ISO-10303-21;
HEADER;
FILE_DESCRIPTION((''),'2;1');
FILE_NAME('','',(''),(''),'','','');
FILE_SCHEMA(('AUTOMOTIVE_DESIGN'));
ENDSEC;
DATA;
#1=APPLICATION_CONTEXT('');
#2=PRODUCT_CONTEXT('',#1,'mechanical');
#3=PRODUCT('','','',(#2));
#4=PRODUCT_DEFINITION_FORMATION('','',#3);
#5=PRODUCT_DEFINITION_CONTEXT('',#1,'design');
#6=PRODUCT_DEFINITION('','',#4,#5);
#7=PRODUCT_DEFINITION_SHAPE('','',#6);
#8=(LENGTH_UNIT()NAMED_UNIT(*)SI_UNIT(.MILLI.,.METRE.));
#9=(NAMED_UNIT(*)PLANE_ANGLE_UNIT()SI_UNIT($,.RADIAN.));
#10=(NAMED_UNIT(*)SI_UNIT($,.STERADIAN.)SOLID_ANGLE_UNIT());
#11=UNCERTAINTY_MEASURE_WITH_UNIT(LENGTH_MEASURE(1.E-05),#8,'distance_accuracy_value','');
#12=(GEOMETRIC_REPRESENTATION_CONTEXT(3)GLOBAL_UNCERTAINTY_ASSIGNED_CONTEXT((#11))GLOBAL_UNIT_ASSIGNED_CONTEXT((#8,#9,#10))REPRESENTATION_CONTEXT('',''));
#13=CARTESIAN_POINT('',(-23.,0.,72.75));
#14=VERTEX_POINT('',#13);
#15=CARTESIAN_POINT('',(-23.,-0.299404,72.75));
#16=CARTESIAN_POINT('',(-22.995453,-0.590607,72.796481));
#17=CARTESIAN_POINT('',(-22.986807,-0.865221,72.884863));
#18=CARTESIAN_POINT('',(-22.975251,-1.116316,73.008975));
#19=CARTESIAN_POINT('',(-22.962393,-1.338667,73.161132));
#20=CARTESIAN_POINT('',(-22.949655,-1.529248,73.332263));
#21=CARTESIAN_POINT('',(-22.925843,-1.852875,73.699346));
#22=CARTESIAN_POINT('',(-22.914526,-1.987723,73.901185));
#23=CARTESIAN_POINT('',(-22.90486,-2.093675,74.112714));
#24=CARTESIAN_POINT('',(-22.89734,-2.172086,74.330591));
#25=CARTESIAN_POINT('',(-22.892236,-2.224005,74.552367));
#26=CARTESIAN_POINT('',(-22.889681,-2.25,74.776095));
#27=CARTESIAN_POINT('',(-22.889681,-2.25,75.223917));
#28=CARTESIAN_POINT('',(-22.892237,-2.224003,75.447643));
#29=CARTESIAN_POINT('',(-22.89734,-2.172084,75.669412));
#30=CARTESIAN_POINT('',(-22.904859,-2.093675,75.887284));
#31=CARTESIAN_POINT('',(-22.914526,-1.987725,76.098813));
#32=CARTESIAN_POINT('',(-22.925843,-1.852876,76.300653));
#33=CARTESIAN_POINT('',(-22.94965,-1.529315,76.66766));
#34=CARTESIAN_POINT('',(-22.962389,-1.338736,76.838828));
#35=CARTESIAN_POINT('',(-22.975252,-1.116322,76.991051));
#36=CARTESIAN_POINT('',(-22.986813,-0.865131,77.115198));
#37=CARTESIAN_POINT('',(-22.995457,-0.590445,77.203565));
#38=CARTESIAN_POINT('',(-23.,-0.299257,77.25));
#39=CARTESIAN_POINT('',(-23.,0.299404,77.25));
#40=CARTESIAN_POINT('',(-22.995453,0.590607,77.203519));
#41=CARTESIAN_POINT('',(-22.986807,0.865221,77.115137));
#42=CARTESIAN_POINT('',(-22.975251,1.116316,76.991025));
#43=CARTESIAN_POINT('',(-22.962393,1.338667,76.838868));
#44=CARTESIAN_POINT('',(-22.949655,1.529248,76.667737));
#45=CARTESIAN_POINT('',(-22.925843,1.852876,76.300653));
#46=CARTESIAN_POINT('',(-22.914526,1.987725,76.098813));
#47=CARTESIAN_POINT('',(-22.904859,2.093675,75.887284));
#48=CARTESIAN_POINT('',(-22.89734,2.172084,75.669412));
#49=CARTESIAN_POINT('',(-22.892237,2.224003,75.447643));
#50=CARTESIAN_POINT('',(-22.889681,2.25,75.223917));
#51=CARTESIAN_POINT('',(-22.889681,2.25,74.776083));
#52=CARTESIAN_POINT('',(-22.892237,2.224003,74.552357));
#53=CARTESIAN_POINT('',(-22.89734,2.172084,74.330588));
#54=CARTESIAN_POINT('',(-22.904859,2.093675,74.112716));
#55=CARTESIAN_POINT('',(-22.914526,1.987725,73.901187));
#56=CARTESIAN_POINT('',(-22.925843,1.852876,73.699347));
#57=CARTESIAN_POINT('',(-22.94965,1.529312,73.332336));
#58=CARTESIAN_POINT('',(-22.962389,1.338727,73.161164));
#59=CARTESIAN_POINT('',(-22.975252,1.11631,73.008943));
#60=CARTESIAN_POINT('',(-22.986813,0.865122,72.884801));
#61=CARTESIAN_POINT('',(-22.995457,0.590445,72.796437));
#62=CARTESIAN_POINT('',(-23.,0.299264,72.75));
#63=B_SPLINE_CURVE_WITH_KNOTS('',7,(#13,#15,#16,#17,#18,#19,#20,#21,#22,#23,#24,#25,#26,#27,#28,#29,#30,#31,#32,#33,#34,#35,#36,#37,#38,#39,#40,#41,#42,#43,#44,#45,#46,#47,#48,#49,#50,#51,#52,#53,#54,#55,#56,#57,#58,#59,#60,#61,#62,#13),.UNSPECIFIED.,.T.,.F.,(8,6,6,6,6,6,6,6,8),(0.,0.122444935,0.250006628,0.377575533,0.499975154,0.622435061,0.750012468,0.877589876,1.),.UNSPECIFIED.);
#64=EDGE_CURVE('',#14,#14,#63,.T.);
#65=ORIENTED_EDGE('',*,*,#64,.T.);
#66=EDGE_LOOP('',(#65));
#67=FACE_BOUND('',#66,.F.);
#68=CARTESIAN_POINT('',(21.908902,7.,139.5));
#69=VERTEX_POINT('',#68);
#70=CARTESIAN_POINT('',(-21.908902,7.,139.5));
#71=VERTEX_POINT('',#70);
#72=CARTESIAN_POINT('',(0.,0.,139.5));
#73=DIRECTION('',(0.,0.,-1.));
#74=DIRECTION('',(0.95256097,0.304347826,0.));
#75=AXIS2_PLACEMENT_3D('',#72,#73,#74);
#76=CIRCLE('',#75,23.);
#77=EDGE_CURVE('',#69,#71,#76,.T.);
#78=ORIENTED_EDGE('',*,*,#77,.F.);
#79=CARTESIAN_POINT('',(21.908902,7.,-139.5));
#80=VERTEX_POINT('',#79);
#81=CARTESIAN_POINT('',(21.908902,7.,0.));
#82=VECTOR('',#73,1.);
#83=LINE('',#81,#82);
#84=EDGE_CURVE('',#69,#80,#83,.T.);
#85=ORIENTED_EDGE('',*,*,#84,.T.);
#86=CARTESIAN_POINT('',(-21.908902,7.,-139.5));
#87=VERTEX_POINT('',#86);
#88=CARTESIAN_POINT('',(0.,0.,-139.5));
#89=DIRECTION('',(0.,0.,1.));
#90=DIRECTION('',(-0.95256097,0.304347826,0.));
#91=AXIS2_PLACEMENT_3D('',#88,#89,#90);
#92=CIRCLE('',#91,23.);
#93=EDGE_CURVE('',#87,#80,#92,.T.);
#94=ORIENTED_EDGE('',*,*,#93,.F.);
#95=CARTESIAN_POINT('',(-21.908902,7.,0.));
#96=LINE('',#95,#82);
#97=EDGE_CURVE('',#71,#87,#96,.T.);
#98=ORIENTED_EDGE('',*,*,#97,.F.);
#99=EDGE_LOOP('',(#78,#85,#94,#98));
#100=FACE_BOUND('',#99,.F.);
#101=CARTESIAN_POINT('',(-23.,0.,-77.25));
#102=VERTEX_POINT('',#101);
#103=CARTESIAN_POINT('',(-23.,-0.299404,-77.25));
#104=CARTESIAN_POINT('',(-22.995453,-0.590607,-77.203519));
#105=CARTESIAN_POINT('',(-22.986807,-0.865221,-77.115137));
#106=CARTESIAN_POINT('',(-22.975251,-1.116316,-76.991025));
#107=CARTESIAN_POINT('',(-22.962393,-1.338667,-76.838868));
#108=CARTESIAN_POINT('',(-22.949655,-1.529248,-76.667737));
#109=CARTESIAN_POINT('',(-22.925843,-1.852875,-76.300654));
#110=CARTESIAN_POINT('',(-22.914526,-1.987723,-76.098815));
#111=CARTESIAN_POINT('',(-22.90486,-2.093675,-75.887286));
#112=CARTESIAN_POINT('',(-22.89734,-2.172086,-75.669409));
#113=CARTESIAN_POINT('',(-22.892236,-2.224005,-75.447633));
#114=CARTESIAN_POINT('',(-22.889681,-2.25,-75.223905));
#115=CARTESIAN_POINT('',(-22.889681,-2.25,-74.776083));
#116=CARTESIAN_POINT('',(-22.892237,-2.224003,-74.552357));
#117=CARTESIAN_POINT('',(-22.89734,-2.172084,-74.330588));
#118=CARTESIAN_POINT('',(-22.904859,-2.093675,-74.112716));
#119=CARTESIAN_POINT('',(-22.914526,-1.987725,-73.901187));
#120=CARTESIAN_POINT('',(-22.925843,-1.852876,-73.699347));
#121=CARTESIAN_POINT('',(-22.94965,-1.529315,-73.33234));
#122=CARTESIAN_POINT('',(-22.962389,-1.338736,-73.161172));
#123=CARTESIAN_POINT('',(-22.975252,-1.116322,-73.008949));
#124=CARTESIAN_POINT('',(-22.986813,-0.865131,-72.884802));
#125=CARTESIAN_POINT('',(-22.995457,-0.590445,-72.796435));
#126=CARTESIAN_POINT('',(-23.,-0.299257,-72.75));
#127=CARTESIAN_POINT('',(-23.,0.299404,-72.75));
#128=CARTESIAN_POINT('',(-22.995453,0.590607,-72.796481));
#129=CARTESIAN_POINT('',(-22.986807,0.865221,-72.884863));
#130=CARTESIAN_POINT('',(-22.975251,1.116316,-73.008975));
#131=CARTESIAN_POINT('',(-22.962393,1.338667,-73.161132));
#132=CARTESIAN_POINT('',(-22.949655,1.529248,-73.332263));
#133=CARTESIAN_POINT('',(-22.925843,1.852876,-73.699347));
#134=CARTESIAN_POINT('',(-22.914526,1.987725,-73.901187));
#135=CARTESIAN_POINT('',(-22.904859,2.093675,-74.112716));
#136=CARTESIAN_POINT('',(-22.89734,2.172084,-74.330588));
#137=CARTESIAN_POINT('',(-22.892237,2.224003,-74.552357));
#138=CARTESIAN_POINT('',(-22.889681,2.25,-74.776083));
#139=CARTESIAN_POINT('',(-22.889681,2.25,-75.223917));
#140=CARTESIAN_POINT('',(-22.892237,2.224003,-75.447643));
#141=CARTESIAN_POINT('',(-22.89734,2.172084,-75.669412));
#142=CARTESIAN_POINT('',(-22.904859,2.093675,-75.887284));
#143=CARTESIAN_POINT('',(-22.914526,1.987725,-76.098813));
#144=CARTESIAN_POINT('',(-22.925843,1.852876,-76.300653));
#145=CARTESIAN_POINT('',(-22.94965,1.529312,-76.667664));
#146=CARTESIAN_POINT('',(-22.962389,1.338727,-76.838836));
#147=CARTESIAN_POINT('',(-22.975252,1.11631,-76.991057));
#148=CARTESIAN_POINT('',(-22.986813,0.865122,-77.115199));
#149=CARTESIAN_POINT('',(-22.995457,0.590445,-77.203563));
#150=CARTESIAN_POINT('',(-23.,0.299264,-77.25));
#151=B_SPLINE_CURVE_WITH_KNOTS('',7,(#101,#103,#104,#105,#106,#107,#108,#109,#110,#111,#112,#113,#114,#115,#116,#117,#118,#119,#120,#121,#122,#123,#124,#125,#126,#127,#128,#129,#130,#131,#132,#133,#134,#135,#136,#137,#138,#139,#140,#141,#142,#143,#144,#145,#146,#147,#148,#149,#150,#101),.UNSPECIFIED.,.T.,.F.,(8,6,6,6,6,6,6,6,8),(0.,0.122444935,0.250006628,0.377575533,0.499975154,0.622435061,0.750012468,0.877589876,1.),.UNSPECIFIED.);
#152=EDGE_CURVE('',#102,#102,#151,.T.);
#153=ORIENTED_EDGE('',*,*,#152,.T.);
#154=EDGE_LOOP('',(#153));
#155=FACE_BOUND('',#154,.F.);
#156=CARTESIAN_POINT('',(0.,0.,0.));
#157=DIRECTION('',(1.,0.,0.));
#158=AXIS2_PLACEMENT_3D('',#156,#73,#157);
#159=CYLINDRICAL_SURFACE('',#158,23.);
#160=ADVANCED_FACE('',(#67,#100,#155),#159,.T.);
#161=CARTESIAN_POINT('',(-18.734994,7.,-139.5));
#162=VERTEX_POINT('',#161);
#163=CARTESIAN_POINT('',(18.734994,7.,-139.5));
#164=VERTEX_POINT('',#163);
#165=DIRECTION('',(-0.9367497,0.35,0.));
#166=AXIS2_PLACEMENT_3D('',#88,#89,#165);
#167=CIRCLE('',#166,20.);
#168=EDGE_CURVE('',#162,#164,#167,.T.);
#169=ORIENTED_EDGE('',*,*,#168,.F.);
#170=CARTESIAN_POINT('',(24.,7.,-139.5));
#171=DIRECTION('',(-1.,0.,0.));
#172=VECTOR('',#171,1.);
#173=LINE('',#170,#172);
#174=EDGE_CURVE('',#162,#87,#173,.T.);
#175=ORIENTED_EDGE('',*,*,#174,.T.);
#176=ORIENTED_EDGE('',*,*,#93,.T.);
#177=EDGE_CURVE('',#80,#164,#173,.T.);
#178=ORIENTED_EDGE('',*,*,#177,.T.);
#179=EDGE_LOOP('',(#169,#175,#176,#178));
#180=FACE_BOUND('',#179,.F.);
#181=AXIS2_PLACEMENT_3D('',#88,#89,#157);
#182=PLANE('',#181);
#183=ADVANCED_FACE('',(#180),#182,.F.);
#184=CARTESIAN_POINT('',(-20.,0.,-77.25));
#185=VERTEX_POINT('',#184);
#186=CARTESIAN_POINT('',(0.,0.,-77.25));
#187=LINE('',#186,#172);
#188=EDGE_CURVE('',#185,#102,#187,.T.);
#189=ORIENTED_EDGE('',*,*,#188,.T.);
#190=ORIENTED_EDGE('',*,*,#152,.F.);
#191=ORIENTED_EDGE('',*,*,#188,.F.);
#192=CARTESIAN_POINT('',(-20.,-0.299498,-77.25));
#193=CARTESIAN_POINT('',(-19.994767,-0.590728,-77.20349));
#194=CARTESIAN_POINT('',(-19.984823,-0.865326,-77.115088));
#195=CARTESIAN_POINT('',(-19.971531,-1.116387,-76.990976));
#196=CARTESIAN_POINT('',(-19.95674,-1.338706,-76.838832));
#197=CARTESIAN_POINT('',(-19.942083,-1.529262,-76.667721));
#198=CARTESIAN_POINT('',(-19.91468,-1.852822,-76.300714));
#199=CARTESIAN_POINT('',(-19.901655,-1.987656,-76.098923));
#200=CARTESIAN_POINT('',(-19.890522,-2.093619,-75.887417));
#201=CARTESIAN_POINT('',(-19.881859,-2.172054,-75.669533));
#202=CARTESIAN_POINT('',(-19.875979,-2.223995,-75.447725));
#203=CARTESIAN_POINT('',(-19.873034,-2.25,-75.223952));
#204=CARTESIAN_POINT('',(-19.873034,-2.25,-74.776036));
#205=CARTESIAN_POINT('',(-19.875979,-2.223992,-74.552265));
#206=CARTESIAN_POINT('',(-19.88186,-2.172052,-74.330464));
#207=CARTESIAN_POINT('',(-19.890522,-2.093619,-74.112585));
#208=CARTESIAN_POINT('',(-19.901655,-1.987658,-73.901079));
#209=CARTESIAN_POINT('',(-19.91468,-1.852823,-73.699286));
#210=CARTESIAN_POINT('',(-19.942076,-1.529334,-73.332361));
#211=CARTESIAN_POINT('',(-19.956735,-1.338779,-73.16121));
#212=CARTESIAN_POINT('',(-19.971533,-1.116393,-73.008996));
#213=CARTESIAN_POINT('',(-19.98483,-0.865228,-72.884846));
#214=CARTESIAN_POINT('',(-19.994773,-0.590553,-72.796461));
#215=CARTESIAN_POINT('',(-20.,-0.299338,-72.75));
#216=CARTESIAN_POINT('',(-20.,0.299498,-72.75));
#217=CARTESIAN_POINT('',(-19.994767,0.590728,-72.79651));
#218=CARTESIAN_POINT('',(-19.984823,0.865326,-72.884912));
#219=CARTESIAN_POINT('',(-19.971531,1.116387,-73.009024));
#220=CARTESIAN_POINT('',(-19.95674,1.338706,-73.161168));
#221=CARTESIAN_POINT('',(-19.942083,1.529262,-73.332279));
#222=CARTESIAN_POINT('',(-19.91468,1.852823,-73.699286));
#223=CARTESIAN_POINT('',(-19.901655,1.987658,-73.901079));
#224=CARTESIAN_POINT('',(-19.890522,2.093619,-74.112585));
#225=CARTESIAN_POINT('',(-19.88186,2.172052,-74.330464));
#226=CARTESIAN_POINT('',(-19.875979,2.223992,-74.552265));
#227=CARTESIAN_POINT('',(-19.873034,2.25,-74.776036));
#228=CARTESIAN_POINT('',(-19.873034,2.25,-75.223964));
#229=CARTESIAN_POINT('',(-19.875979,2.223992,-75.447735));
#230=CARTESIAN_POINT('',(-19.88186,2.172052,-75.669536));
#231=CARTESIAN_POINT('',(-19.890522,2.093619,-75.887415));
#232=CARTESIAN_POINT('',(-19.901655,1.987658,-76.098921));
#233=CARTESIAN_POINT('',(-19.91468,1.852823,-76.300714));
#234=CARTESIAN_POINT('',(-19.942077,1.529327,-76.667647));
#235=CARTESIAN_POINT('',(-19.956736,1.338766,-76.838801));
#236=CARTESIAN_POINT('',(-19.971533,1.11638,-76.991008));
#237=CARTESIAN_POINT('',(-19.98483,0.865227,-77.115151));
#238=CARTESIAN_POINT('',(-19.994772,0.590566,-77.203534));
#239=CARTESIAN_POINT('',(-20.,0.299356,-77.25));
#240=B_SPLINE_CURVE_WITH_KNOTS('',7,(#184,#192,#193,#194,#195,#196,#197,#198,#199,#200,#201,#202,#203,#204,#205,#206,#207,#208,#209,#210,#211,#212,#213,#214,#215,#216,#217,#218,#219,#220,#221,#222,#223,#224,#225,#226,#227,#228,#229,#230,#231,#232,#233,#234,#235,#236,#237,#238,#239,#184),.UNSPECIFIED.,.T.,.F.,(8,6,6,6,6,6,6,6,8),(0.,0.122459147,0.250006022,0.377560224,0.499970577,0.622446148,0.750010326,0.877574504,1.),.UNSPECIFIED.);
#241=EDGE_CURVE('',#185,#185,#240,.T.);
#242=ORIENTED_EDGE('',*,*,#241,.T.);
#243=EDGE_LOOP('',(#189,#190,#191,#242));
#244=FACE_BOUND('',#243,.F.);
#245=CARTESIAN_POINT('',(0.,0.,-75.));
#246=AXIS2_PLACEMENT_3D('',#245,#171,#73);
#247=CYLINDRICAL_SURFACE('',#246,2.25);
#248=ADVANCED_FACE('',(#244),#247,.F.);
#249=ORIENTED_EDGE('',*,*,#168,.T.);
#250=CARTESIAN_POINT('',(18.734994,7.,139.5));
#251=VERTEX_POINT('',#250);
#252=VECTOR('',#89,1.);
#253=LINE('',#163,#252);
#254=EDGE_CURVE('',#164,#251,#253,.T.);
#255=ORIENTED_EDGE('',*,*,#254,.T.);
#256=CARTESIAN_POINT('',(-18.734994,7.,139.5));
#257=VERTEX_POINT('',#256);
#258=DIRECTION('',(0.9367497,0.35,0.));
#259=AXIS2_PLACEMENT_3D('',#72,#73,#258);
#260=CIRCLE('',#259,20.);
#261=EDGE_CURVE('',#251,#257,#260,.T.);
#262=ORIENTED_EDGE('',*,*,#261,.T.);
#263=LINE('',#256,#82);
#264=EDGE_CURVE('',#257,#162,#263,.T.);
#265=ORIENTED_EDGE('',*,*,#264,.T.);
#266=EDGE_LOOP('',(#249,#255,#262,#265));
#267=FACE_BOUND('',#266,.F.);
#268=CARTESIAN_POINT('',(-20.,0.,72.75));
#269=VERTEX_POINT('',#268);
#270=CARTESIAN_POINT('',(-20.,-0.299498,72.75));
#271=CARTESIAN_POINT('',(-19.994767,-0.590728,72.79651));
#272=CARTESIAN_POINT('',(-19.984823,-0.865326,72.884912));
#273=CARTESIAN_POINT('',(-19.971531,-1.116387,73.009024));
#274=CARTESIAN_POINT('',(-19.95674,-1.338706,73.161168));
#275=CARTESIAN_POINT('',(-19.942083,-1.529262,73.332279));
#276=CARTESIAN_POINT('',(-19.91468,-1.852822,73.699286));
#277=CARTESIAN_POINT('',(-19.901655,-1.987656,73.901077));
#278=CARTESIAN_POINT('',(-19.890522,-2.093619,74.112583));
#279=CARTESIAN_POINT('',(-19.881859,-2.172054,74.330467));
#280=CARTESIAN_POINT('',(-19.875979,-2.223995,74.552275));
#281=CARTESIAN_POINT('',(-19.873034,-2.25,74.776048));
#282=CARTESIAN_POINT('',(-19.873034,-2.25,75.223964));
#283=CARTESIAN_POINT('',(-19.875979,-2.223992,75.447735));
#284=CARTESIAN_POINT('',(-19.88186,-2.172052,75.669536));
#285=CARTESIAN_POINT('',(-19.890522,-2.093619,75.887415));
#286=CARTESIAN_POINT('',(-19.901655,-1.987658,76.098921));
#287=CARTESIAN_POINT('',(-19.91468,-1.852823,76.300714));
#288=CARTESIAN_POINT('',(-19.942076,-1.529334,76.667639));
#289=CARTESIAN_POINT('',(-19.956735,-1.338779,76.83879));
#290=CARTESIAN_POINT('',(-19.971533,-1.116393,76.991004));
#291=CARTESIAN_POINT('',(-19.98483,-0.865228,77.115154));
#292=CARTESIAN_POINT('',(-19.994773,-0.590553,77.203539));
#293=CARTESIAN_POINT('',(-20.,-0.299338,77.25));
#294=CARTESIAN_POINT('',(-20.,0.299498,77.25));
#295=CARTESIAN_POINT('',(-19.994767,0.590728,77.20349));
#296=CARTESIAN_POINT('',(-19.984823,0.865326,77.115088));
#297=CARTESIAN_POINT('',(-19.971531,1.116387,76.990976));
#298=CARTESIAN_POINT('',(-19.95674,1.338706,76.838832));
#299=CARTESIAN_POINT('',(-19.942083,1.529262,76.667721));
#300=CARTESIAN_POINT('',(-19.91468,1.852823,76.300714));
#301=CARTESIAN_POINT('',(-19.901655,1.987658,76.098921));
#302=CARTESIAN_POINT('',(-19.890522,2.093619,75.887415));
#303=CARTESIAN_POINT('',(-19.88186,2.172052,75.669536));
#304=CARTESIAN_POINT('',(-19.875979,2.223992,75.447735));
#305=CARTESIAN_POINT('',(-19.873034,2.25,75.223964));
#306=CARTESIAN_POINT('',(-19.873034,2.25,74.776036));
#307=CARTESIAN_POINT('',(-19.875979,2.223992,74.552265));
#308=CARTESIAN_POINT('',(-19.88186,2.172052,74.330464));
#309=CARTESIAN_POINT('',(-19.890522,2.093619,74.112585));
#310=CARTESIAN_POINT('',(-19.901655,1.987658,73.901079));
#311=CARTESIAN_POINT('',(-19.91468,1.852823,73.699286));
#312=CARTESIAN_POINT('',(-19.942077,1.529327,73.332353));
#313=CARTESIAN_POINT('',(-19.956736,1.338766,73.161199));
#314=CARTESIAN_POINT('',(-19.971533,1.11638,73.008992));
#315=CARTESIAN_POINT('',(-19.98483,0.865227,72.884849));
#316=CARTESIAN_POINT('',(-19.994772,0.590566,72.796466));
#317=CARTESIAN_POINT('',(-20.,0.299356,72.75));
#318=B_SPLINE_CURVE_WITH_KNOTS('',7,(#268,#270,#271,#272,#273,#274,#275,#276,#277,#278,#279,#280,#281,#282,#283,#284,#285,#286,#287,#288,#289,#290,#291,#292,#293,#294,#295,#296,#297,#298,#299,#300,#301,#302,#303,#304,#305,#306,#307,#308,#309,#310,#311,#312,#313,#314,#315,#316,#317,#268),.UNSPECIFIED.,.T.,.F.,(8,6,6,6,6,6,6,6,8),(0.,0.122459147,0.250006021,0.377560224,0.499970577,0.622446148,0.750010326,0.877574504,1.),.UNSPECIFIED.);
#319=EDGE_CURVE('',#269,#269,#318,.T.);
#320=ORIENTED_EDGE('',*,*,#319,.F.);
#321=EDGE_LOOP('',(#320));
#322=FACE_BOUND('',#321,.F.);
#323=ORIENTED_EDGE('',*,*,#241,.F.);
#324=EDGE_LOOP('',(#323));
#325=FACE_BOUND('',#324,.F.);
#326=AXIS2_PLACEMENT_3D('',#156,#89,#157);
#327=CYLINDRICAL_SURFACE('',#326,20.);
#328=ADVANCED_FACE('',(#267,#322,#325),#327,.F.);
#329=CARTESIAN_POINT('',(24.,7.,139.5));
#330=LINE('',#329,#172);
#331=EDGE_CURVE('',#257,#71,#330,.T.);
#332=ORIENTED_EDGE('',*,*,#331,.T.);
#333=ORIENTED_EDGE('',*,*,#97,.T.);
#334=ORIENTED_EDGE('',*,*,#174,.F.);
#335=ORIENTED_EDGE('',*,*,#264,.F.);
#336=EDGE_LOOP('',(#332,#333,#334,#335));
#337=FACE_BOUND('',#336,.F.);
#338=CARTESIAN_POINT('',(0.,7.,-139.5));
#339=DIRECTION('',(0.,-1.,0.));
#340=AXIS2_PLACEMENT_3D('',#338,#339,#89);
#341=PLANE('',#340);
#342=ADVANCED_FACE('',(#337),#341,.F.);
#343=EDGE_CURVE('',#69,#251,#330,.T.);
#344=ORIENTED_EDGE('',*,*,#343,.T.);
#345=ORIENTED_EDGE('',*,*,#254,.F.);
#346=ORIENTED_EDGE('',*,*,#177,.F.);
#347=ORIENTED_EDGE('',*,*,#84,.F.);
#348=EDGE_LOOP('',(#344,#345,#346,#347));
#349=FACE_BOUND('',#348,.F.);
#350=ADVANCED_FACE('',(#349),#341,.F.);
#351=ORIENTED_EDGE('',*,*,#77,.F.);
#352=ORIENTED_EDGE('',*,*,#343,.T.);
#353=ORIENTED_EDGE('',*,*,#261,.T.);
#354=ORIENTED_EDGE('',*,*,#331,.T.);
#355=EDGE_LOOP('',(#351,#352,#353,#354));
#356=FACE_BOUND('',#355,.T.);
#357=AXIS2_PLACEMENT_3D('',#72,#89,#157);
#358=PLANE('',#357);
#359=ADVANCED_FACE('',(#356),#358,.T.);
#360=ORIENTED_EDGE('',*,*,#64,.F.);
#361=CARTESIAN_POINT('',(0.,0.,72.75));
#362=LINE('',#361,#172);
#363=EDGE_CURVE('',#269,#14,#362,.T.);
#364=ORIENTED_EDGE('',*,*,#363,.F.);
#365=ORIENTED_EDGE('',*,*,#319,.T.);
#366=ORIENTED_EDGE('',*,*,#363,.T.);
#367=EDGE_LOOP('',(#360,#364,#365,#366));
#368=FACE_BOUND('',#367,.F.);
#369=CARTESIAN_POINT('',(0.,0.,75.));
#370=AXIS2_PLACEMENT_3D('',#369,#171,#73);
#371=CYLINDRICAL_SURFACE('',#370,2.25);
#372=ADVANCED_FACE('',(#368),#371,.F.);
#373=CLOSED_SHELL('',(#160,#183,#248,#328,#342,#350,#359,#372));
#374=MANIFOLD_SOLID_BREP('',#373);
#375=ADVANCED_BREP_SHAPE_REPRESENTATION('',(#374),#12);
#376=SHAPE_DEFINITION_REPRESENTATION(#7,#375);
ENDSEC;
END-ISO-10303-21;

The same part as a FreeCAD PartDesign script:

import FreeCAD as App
import Part
import Sketcher
Q = App.Units.Quantity

doc = App.newDocument("Part")
body = doc.addObject("PartDesign::Body", "Body")

sketch1 = body.newObject("Sketcher::SketchObject", "Sketch")
sketch1.AttachmentSupport = (doc.getObject("XY_Plane"), [""])
sketch1.MapMode = "FlatFace"
sketch1.addGeometry(Part.Circle(App.Vector(0, 0, 0), App.Vector(0, 0, 1), 23), False)
sketch1.addGeometry(Part.Circle(App.Vector(0, 0, 0), App.Vector(0, 0, 1), 20), False)
sketch1.addConstraint(Sketcher.Constraint("Coincident", 0, 3, -1, 1))
sketch1.addConstraint(Sketcher.Constraint("Coincident", 1, 3, -1, 1))
sketch1.addConstraint(Sketcher.Constraint("Diameter", 0, Q("46 mm")))
sketch1.addConstraint(Sketcher.Constraint("Diameter", 1, Q("40 mm")))
pad1 = body.newObject("PartDesign::Pad", "Pad")
pad1.Profile = sketch1
pad1.Length = 279
pad1.Midplane = True

sketch2 = body.newObject("Sketcher::SketchObject", "Sketch001")
sketch2.AttachmentSupport = (doc.getObject("YZ_Plane"), [""])
sketch2.MapMode = "FlatFace"
sketch2.addGeometry(Part.Circle(App.Vector(0, 75, 0), App.Vector(0, 0, 1), 2.2), False)
sketch2.addGeometry(Part.Circle(App.Vector(0, -75, 0), App.Vector(0, 0, 1), 2.2), False)
sketch2.addConstraint(Sketcher.Constraint("Equal", 0, 1))
sketch2.addConstraint(Sketcher.Constraint("Symmetric", 0, 3, 1, 3, -1, 1))
sketch2.addConstraint(Sketcher.Constraint("PointOnObject", 0, 3, -2))
sketch2.addConstraint(Sketcher.Constraint("Diameter", 0, Q("4.5 mm")))
sketch2.addConstraint(Sketcher.Constraint("DistanceY", -1, 1, 0, 3, Q("75 mm")))
doc.recompute()
hole = body.newObject("PartDesign::Hole", "Hole")
hole.Profile = sketch2
hole.ThreadType = "None"
hole.Diameter = 4.5
hole.DepthType = "ThroughAll"

sketch3 = body.newObject("Sketcher::SketchObject", "Sketch002")
sketch3.AttachmentSupport = (doc.getObject("YZ_Plane"), [""])
sketch3.MapMode = "FlatFace"
sketch3.addGeometry(Part.LineSegment(App.Vector(7, -140, 0), App.Vector(23, -140, 0)), False)
sketch3.addGeometry(Part.LineSegment(App.Vector(23, -140, 0), App.Vector(23, 140, 0)), False)
sketch3.addGeometry(Part.LineSegment(App.Vector(23, 140, 0), App.Vector(7, 140, 0)), False)
sketch3.addGeometry(Part.LineSegment(App.Vector(7, 140, 0), App.Vector(7, -140, 0)), False)
sketch3.addConstraint(Sketcher.Constraint("Coincident", 0, 2, 1, 1))
sketch3.addConstraint(Sketcher.Constraint("Coincident", 1, 2, 2, 1))
sketch3.addConstraint(Sketcher.Constraint("Coincident", 2, 2, 3, 1))
sketch3.addConstraint(Sketcher.Constraint("Coincident", 3, 2, 0, 1))
sketch3.addConstraint(Sketcher.Constraint("Horizontal", 0))
sketch3.addConstraint(Sketcher.Constraint("Vertical", 1))
sketch3.addConstraint(Sketcher.Constraint("Horizontal", 2))
sketch3.addConstraint(Sketcher.Constraint("Vertical", 3))
sketch3.addConstraint(Sketcher.Constraint("DistanceX", -1, 1, 2, 2, Q("7 mm")))
sketch3.addConstraint(Sketcher.Constraint("DistanceX", 0, 1, 0, 2, Q("16 mm")))
sketch3.addConstraint(Sketcher.Constraint("DistanceY", 1, 1, 1, 2, Q("279 mm")))
sketch3.addConstraint(Sketcher.Constraint("DistanceY", 0, 2, -1, 1, Q("139.5 mm")))
pocket1 = body.newObject("PartDesign::Pocket", "Pocket")
pocket1.Profile = sketch3
pocket1.Type = "ThroughAll"
pocket1.Midplane = True

doc.recompute()
